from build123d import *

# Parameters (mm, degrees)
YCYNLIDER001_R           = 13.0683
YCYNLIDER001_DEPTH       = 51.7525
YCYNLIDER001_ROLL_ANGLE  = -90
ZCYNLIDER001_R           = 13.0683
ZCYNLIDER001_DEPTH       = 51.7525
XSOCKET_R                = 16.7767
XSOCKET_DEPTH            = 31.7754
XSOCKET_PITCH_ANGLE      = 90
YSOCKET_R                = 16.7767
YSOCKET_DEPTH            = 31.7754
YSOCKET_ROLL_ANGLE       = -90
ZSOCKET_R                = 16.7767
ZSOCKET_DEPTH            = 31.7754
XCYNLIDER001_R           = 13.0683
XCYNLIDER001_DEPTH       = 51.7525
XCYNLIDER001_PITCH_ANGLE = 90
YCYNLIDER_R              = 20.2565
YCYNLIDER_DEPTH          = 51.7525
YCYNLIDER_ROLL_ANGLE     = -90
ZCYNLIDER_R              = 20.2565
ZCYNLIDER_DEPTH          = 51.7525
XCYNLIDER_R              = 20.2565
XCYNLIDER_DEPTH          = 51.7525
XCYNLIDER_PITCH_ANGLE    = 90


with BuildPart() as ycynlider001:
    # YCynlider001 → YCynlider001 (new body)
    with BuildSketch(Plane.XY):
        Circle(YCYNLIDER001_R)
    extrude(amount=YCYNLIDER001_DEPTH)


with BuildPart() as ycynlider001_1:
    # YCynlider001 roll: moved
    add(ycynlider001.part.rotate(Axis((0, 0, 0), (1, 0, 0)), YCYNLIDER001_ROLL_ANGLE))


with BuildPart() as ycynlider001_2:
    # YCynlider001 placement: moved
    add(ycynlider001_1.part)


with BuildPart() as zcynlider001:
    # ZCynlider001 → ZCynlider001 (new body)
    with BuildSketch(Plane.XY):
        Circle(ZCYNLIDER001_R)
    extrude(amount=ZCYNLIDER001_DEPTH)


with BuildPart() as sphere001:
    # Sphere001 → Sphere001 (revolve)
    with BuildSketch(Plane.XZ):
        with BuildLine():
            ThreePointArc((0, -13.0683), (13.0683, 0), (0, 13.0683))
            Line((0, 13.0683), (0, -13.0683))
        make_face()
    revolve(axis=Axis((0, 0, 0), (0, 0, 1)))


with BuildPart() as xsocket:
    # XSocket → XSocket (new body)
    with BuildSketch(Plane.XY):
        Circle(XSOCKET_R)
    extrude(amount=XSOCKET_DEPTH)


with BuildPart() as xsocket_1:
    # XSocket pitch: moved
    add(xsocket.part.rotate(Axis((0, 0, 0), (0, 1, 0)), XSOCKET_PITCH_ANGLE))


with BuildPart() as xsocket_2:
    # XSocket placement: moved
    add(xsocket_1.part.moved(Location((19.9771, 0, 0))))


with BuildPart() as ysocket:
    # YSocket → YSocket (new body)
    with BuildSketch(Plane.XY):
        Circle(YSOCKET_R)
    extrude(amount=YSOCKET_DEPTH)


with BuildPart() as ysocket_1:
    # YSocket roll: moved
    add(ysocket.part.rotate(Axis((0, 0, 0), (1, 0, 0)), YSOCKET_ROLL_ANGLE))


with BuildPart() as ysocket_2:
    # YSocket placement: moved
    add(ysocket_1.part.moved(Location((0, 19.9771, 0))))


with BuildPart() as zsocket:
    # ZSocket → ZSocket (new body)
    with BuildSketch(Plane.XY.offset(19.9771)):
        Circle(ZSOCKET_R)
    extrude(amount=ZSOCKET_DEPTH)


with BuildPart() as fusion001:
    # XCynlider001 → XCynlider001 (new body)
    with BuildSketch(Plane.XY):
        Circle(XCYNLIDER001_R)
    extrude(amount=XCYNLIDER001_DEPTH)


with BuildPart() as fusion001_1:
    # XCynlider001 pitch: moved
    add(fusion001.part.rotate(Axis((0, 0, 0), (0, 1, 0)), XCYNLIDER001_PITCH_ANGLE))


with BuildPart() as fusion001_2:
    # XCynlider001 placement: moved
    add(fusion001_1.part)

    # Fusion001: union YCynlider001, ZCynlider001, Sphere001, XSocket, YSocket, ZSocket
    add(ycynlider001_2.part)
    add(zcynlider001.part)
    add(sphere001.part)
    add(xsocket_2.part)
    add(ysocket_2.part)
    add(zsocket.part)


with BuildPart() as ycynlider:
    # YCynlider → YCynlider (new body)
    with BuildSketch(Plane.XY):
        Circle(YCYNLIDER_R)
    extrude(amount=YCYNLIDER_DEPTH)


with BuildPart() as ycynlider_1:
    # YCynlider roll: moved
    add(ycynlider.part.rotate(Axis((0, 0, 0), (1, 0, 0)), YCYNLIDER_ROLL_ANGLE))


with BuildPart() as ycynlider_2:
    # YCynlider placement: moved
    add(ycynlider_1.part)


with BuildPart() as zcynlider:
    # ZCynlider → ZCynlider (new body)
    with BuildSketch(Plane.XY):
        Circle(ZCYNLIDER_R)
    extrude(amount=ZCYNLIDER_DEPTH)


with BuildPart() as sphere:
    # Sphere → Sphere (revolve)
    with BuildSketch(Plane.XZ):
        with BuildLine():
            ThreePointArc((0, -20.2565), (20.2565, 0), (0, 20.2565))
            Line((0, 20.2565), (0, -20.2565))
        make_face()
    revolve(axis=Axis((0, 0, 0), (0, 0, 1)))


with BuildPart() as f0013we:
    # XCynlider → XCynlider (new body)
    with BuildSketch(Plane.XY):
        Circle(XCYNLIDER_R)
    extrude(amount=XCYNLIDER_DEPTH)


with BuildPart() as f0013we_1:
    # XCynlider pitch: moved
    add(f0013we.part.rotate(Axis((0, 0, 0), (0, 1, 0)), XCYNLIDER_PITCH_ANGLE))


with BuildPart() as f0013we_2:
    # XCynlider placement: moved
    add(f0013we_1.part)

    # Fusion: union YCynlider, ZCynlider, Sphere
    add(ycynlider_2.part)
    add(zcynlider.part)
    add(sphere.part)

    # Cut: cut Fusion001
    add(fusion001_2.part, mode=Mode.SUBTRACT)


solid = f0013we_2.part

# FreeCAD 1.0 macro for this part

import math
import FreeCAD as App
import Part
import Sketcher

V = App.Vector
Q = App.Units.Quantity

doc = App.newDocument("Part")
body = doc.addObject("PartDesign::Body", "Body")

# Sketch on XY plane
sketch1 = doc.addObject("Sketcher::SketchObject", "Sketch")
body.addObject(sketch1)
sketch1.AttachmentSupport = (doc.XY_Plane, [""])
sketch1.MapMode = "FlatFace"
sketch1.addGeometry(Part.Circle(V(0, 0, 0), V(0, 0, 1), 13.0683), False)
sketch1.addConstraint([
    Sketcher.Constraint("Coincident", 0, 3, -1, 1),
    Sketcher.Constraint("Diameter", 0, Q("1.029 in")),
])
pad1 = doc.addObject("PartDesign::Pad", "Pad")
body.addObject(pad1)
pad1.Profile = sketch1
pad1.Length = Q("2.0375 in")
body2 = doc.addObject("PartDesign::Body", "Body001")
doc.recompute()

body.Placement = App.Placement(V(0, 0, 0), App.Rotation(V(1, 0, 0), 270))
boolean = doc.addObject("PartDesign::Boolean", "Boolean")
body2.addObject(boolean)
boolean.Type = "Fuse"
boolean.addObjects([body])
body3 = doc.addObject("PartDesign::Body", "Body002")

# Sketch on XY plane
sketch2 = doc.addObject("Sketcher::SketchObject", "Sketch001")
body3.addObject(sketch2)
sketch2.AttachmentSupport = (doc.getObject("XY_Plane002"), [""])
sketch2.MapMode = "FlatFace"
sketch2.addGeometry(Part.Circle(V(0, 0, 0), V(0, 0, 1), 13.0683), False)
sketch2.addConstraint([
    Sketcher.Constraint("Coincident", 0, 3, -1, 1),
    Sketcher.Constraint("Diameter", 0, Q("1.029 in")),
])
pad2 = doc.addObject("PartDesign::Pad", "Pad001")
body3.addObject(pad2)
pad2.Profile = sketch2
pad2.Length = Q("2.0375 in")
body4 = doc.addObject("PartDesign::Body", "Body003")

# Sketch on XZ plane
sketch3 = doc.addObject("Sketcher::SketchObject", "Sketch002")
body4.addObject(sketch3)
sketch3.AttachmentSupport = (doc.getObject("XZ_Plane003"), [""])
sketch3.MapMode = "FlatFace"
sketch3.addGeometry([
    Part.ArcOfCircle(Part.Circle(V(0, 0, 0), V(0, 0, 1), 13.0683), math.radians(-90), math.radians(90)),
    Part.LineSegment(V(0, 13.0683, 0), V(0, -13.0683, 0)),
], False)
sketch3.addConstraint([
    Sketcher.Constraint("Coincident", 0, 1, 1, 2),
    Sketcher.Constraint("Coincident", 1, 1, 0, 2),
    Sketcher.Constraint("Vertical", 1),
    Sketcher.Constraint("Coincident", 0, 3, -1, 1),
    Sketcher.Constraint("PointOnObject", 0, 1, -2),
    Sketcher.Constraint("Radius", 0, Q("0.5145 in")),
])
revolution = doc.addObject("PartDesign::Revolution", "Revolution")
body4.addObject(revolution)
revolution.Profile = sketch3
revolution.ReferenceAxis = (sketch3, ["V_Axis"])
revolution.Angle = 360
body5 = doc.addObject("PartDesign::Body", "Body004")

# Sketch on XY plane
sketch4 = doc.addObject("Sketcher::SketchObject", "Sketch003")
body5.addObject(sketch4)
sketch4.AttachmentSupport = (doc.getObject("XY_Plane004"), [""])
sketch4.MapMode = "FlatFace"
sketch4.addGeometry(Part.Circle(V(0, 0, 0), V(0, 0, 1), 16.7767), False)
sketch4.addConstraint([
    Sketcher.Constraint("Coincident", 0, 3, -1, 1),
    Sketcher.Constraint("Diameter", 0, Q("1.321 in")),
])
pad3 = doc.addObject("PartDesign::Pad", "Pad002")
body5.addObject(pad3)
pad3.Profile = sketch4
pad3.Length = Q("1.251 in")
body6 = doc.addObject("PartDesign::Body", "Body005")
doc.recompute()

body5.Placement = App.Placement(V(0, 0, 0), App.Rotation(V(0, 1, 0), 90))
boolean2 = doc.addObject("PartDesign::Boolean", "Boolean001")
body6.addObject(boolean2)
boolean2.Type = "Fuse"
boolean2.addObjects([body5])
body7 = doc.addObject("PartDesign::Body", "Body006")
doc.recompute()

body6.Placement = App.Placement(V(19.9771, 0, 0), App.Rotation(V(0, 0, 1), 0))
boolean3 = doc.addObject("PartDesign::Boolean", "Boolean002")
body7.addObject(boolean3)
boolean3.Type = "Fuse"
boolean3.addObjects([body6])
body8 = doc.addObject("PartDesign::Body", "Body007")

# Sketch on XY plane
sketch5 = doc.addObject("Sketcher::SketchObject", "Sketch004")
body8.addObject(sketch5)
sketch5.AttachmentSupport = (doc.getObject("XY_Plane007"), [""])
sketch5.MapMode = "FlatFace"
sketch5.addGeometry(Part.Circle(V(0, 0, 0), V(0, 0, 1), 16.7767), False)
sketch5.addConstraint([
    Sketcher.Constraint("Coincident", 0, 3, -1, 1),
    Sketcher.Constraint("Diameter", 0, Q("1.321 in")),
])
pad4 = doc.addObject("PartDesign::Pad", "Pad003")
body8.addObject(pad4)
pad4.Profile = sketch5
pad4.Length = Q("1.251 in")
body9 = doc.addObject("PartDesign::Body", "Body008")
doc.recompute()

body8.Placement = App.Placement(V(0, 0, 0), App.Rotation(V(1, 0, 0), 270))
boolean4 = doc.addObject("PartDesign::Boolean", "Boolean003")
body9.addObject(boolean4)
boolean4.Type = "Fuse"
boolean4.addObjects([body8])
body10 = doc.addObject("PartDesign::Body", "Body009")
doc.recompute()

body9.Placement = App.Placement(V(0, 19.9771, 0), App.Rotation(V(0, 0, 1), 0))
boolean5 = doc.addObject("PartDesign::Boolean", "Boolean004")
body10.addObject(boolean5)
boolean5.Type = "Fuse"
boolean5.addObjects([body9])
body11 = doc.addObject("PartDesign::Body", "Body010")

# Sketch on XY plane
sketch6 = doc.addObject("Sketcher::SketchObject", "Sketch005")
body11.addObject(sketch6)
sketch6.AttachmentSupport = (doc.getObject("XY_Plane010"), [""])
sketch6.MapMode = "FlatFace"
sketch6.AttachmentOffset = App.Placement(V(0, 0, 0.7865 * 25.4), App.Rotation())
sketch6.addGeometry(Part.Circle(V(0, 0, 0), V(0, 0, 1), 16.7767), False)
sketch6.addConstraint([
    Sketcher.Constraint("Coincident", 0, 3, -1, 1),
    Sketcher.Constraint("Diameter", 0, Q("1.321 in")),
])
pad5 = doc.addObject("PartDesign::Pad", "Pad004")
body11.addObject(pad5)
pad5.Profile = sketch6
pad5.Length = Q("1.251 in")
body12 = doc.addObject("PartDesign::Body", "Body011")

# Sketch on XY plane
sketch7 = doc.addObject("Sketcher::SketchObject", "Sketch006")
body12.addObject(sketch7)
sketch7.AttachmentSupport = (doc.getObject("XY_Plane011"), [""])
sketch7.MapMode = "FlatFace"
sketch7.addGeometry(Part.Circle(V(0, 0, 0), V(0, 0, 1), 13.0683), False)
sketch7.addConstraint([
    Sketcher.Constraint("Coincident", 0, 3, -1, 1),
    Sketcher.Constraint("Diameter", 0, Q("1.029 in")),
])
pad6 = doc.addObject("PartDesign::Pad", "Pad005")
body12.addObject(pad6)
pad6.Profile = sketch7
pad6.Length = Q("2.0375 in")
body13 = doc.addObject("PartDesign::Body", "Body012")
doc.recompute()

body12.Placement = App.Placement(V(0, 0, 0), App.Rotation(V(0, 1, 0), 90))
boolean6 = doc.addObject("PartDesign::Boolean", "Boolean005")
body13.addObject(boolean6)
boolean6.Type = "Fuse"
boolean6.addObjects([body12])
doc.recompute()

boolean7 = doc.addObject("PartDesign::Boolean", "Boolean006")
body13.addObject(boolean7)
boolean7.Type = "Fuse"
boolean7.addObjects([body2])
doc.recompute()

boolean8 = doc.addObject("PartDesign::Boolean", "Boolean007")
body13.addObject(boolean8)
boolean8.Type = "Fuse"
boolean8.addObjects([body3])
doc.recompute()

boolean9 = doc.addObject("PartDesign::Boolean", "Boolean008")
body13.addObject(boolean9)
boolean9.Type = "Fuse"
boolean9.addObjects([body4])
doc.recompute()

boolean10 = doc.addObject("PartDesign::Boolean", "Boolean009")
body13.addObject(boolean10)
boolean10.Type = "Fuse"
boolean10.addObjects([body7])
doc.recompute()

boolean11 = doc.addObject("PartDesign::Boolean", "Boolean010")
body13.addObject(boolean11)
boolean11.Type = "Fuse"
boolean11.addObjects([body10])
doc.recompute()

boolean12 = doc.addObject("PartDesign::Boolean", "Boolean011")
body13.addObject(boolean12)
boolean12.Type = "Fuse"
boolean12.addObjects([body11])
body14 = doc.addObject("PartDesign::Body", "Body013")

# Sketch on XY plane
sketch8 = doc.addObject("Sketcher::SketchObject", "Sketch007")
body14.addObject(sketch8)
sketch8.AttachmentSupport = (doc.getObject("XY_Plane013"), [""])
sketch8.MapMode = "FlatFace"
sketch8.addGeometry(Part.Circle(V(0, 0, 0), V(0, 0, 1), 20.2565), False)
sketch8.addConstraint([
    Sketcher.Constraint("Coincident", 0, 3, -1, 1),
    Sketcher.Constraint("Diameter", 0, Q("1.595 in")),
])
pad7 = doc.addObject("PartDesign::Pad", "Pad006")
body14.addObject(pad7)
pad7.Profile = sketch8
pad7.Length = Q("2.0375 in")
body15 = doc.addObject("PartDesign::Body", "Body014")
doc.recompute()

body14.Placement = App.Placement(V(0, 0, 0), App.Rotation(V(1, 0, 0), 270))
boolean13 = doc.addObject("PartDesign::Boolean", "Boolean012")
body15.addObject(boolean13)
boolean13.Type = "Fuse"
boolean13.addObjects([body14])
body16 = doc.addObject("PartDesign::Body", "Body015")

# Sketch on XY plane
sketch9 = doc.addObject("Sketcher::SketchObject", "Sketch008")
body16.addObject(sketch9)
sketch9.AttachmentSupport = (doc.getObject("XY_Plane015"), [""])
sketch9.MapMode = "FlatFace"
sketch9.addGeometry(Part.Circle(V(0, 0, 0), V(0, 0, 1), 20.2565), False)
sketch9.addConstraint([
    Sketcher.Constraint("Coincident", 0, 3, -1, 1),
    Sketcher.Constraint("Diameter", 0, Q("1.595 in")),
])
pad8 = doc.addObject("PartDesign::Pad", "Pad007")
body16.addObject(pad8)
pad8.Profile = sketch9
pad8.Length = Q("2.0375 in")
body17 = doc.addObject("PartDesign::Body", "Body016")

# Sketch on XZ plane
sketch10 = doc.addObject("Sketcher::SketchObject", "Sketch009")
body17.addObject(sketch10)
sketch10.AttachmentSupport = (doc.getObject("XZ_Plane016"), [""])
sketch10.MapMode = "FlatFace"
sketch10.addGeometry([
    Part.ArcOfCircle(Part.Circle(V(0, 0, 0), V(0, 0, 1), 20.2565), math.radians(-90), math.radians(90)),
    Part.LineSegment(V(0, 20.2565, 0), V(0, -20.2565, 0)),
], False)
sketch10.addConstraint([
    Sketcher.Constraint("Coincident", 0, 1, 1, 2),
    Sketcher.Constraint("Coincident", 1, 1, 0, 2),
    Sketcher.Constraint("Vertical", 1),
    Sketcher.Constraint("Coincident", 0, 3, -1, 1),
    Sketcher.Constraint("PointOnObject", 0, 1, -2),
    Sketcher.Constraint("Radius", 0, Q("0.7975 in")),
])
revolution2 = doc.addObject("PartDesign::Revolution", "Revolution001")
body17.addObject(revolution2)
revolution2.Profile = sketch10
revolution2.ReferenceAxis = (sketch10, ["V_Axis"])
revolution2.Angle = 360
body18 = doc.addObject("PartDesign::Body", "Body017")

# Sketch on XY plane
sketch11 = doc.addObject("Sketcher::SketchObject", "Sketch010")
body18.addObject(sketch11)
sketch11.AttachmentSupport = (doc.getObject("XY_Plane017"), [""])
sketch11.MapMode = "FlatFace"
sketch11.addGeometry(Part.Circle(V(0, 0, 0), V(0, 0, 1), 20.2565), False)
sketch11.addConstraint([
    Sketcher.Constraint("Coincident", 0, 3, -1, 1),
    Sketcher.Constraint("Diameter", 0, Q("1.595 in")),
])
pad9 = doc.addObject("PartDesign::Pad", "Pad008")
body18.addObject(pad9)
pad9.Profile = sketch11
pad9.Length = Q("2.0375 in")
body19 = doc.addObject("PartDesign::Body", "Body018")
doc.recompute()

body18.Placement = App.Placement(V(0, 0, 0), App.Rotation(V(0, 1, 0), 90))
boolean14 = doc.addObject("PartDesign::Boolean", "Boolean013")
body19.addObject(boolean14)
boolean14.Type = "Fuse"
boolean14.addObjects([body18])
doc.recompute()

boolean15 = doc.addObject("PartDesign::Boolean", "Boolean014")
body19.addObject(boolean15)
boolean15.Type = "Fuse"
boolean15.addObjects([body15])
doc.recompute()

boolean16 = doc.addObject("PartDesign::Boolean", "Boolean015")
body19.addObject(boolean16)
boolean16.Type = "Fuse"
boolean16.addObjects([body16])
doc.recompute()

boolean17 = doc.addObject("PartDesign::Boolean", "Boolean016")
body19.addObject(boolean17)
boolean17.Type = "Fuse"
boolean17.addObjects([body17])
doc.recompute()

boolean18 = doc.addObject("PartDesign::Boolean", "Boolean017")
body19.addObject(boolean18)
boolean18.Type = "Cut"
boolean18.addObjects([body13])

doc.recompute()
